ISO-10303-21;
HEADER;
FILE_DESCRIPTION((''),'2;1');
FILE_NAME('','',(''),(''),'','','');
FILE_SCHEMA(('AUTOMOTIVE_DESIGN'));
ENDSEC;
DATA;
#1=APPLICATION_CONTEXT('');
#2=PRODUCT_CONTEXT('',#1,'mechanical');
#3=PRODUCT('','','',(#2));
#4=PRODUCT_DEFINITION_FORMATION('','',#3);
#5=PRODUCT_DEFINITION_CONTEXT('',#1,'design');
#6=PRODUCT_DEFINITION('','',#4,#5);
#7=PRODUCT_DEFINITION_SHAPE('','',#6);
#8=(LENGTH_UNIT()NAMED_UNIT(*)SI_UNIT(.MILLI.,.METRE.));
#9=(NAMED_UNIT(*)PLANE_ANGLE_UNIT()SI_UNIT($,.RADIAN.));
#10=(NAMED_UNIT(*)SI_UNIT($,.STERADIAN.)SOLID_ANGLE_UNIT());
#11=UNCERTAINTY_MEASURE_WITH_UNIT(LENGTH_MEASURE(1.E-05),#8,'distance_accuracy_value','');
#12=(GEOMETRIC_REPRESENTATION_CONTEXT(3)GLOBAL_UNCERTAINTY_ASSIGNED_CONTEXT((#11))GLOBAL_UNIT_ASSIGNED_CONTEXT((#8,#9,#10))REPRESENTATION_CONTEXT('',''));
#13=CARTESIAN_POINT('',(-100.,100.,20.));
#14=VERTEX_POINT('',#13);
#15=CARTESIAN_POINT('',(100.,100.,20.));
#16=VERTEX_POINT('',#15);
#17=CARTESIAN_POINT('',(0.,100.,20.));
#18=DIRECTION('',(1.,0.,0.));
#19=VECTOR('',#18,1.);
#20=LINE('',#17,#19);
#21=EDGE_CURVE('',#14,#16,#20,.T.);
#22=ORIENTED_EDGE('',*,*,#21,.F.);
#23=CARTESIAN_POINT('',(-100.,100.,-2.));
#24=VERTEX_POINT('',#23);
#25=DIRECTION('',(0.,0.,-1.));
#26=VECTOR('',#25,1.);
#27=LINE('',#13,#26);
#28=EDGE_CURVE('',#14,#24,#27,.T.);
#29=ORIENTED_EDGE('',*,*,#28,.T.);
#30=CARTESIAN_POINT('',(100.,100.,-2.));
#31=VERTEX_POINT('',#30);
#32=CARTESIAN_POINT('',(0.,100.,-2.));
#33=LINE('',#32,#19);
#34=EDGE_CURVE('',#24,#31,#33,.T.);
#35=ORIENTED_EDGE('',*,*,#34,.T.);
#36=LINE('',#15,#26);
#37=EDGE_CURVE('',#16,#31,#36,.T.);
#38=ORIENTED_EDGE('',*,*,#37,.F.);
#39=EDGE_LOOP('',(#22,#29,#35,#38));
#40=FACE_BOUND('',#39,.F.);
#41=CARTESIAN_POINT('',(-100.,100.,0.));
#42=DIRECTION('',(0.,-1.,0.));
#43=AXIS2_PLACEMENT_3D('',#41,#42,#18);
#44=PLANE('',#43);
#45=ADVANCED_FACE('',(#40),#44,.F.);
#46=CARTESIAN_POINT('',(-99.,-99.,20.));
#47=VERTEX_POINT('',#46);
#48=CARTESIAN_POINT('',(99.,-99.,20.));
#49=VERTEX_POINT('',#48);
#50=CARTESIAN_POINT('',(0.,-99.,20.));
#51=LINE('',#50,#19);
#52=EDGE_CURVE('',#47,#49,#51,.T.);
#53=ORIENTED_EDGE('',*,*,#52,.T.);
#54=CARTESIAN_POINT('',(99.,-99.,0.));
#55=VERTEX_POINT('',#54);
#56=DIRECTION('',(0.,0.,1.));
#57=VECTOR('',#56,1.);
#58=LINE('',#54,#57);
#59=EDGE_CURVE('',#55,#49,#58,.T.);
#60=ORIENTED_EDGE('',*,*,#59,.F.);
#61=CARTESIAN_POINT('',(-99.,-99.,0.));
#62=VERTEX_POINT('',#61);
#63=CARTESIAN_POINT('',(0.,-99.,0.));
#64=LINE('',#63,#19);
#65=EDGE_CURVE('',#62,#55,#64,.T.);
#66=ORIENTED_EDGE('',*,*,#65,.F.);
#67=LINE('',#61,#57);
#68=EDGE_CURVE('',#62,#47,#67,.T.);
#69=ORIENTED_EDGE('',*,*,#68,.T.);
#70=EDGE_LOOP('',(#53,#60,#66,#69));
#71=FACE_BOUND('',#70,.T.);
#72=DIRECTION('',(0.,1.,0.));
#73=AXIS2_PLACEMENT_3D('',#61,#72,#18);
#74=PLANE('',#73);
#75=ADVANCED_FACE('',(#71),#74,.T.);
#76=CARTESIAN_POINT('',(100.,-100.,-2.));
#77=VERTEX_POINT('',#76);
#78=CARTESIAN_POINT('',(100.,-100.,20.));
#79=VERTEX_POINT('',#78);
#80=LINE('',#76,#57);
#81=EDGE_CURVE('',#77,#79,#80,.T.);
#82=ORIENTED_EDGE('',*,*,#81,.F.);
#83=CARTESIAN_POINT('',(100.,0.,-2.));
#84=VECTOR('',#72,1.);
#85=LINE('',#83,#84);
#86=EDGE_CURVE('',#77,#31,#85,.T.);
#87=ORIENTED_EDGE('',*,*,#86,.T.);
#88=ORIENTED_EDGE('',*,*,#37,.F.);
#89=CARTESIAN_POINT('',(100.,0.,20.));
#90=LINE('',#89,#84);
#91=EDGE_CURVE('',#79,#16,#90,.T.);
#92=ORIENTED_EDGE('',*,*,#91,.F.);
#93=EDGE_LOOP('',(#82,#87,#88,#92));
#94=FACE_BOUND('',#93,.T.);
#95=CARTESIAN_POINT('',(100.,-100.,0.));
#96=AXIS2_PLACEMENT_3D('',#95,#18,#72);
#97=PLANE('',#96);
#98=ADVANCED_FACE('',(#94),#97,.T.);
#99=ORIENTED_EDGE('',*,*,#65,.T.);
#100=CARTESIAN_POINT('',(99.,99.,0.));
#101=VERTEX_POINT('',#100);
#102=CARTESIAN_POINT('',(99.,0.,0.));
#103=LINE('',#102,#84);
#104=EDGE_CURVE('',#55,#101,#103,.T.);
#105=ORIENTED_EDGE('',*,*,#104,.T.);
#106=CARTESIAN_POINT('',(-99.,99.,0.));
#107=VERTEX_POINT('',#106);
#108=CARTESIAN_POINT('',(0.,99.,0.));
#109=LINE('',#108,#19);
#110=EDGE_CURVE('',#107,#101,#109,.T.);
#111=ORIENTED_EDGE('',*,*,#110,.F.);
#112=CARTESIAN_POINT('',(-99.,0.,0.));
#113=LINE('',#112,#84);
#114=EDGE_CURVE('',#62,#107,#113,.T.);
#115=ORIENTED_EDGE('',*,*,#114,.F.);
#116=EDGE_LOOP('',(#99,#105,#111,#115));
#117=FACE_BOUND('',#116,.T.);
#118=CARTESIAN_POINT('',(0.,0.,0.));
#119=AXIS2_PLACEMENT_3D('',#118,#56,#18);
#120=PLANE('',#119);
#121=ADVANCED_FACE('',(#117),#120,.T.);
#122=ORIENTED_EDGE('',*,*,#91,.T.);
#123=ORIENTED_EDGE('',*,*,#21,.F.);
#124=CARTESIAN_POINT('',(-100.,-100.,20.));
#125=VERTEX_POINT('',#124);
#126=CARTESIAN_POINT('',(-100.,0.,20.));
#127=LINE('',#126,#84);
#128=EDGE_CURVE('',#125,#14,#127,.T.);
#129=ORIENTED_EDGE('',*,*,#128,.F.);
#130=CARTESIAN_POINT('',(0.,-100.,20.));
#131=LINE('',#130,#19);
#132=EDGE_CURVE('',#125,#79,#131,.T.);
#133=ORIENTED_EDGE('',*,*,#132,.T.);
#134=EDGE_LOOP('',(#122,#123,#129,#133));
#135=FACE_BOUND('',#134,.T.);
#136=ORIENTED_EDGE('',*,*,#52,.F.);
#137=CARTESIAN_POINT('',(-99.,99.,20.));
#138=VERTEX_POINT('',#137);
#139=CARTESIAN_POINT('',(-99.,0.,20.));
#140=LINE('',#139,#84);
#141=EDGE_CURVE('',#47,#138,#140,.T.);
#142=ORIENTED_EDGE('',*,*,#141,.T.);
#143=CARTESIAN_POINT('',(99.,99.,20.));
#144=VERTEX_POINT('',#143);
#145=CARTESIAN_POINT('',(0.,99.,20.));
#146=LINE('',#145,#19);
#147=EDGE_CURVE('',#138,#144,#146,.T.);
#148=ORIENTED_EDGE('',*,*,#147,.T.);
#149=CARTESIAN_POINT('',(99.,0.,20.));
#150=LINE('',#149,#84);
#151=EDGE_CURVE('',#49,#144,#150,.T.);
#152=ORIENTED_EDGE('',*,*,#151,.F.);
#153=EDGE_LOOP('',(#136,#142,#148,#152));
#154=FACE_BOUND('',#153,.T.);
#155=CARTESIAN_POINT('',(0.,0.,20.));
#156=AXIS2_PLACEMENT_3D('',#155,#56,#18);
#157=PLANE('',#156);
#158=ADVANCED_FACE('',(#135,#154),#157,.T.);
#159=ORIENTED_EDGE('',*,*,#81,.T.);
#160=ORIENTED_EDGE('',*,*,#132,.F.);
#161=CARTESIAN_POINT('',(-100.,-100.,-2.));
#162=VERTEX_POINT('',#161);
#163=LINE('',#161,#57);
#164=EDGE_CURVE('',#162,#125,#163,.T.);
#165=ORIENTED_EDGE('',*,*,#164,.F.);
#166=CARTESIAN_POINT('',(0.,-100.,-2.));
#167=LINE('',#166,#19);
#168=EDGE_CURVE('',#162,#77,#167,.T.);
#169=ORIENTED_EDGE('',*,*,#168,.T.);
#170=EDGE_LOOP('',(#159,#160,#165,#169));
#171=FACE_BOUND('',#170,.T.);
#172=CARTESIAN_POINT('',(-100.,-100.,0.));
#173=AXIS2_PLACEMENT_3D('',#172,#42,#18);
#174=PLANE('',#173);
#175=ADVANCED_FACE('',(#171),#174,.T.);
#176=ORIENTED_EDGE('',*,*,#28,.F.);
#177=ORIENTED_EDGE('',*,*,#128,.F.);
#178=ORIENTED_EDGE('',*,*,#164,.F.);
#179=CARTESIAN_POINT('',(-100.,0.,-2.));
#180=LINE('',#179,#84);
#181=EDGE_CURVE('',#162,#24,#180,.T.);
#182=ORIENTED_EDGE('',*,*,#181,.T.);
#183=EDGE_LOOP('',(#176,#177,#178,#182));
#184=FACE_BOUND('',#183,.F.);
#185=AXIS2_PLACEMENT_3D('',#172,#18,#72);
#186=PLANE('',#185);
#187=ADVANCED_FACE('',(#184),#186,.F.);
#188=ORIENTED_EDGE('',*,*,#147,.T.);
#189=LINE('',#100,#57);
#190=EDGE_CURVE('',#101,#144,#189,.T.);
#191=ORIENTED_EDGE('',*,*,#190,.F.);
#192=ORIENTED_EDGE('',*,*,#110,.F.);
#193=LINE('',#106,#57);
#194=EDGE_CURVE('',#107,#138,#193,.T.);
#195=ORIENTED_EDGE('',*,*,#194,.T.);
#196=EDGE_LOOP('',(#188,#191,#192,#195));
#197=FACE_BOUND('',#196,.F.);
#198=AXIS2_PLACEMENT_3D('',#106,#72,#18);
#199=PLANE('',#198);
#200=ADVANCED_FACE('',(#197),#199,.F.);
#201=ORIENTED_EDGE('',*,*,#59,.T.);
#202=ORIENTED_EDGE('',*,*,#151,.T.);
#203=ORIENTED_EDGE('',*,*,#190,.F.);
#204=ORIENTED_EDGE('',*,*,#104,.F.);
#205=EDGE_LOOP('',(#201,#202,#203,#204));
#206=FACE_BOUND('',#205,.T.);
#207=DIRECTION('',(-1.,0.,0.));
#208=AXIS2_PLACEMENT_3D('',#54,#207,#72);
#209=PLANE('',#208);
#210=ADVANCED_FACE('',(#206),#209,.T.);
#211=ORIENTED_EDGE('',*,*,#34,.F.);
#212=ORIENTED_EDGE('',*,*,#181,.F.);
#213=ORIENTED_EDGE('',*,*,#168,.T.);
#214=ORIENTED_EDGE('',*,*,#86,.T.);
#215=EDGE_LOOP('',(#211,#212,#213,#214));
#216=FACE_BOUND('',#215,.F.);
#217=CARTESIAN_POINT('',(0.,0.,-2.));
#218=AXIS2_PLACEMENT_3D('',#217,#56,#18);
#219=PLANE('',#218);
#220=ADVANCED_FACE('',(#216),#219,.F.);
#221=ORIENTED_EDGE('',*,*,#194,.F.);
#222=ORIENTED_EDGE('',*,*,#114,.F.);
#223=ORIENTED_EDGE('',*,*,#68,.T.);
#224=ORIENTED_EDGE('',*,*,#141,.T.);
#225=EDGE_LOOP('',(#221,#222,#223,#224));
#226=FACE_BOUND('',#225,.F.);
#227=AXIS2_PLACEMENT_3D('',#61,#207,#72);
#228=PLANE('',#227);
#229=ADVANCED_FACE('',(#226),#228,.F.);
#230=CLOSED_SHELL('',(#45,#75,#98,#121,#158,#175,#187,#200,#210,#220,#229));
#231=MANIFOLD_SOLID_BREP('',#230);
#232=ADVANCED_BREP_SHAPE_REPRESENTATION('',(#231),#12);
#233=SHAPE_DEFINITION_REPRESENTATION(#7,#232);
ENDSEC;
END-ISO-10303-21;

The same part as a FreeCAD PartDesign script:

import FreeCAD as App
import Part
import Sketcher
from FreeCAD import Vector


def add_polygon(sketch, points):
    """Adds a closed chain of lines whose ends are joined by coincident constraints."""
    first, n = sketch.GeometryCount, len(points)
    for a, b in zip(points, points[1:] + points[:1]):
        sketch.addGeometry(Part.LineSegment(App.Vector(*a, 0), App.Vector(*b, 0)), False)
    for i in range(n):
        sketch.addConstraint(Sketcher.Constraint("Coincident", first + i, 2, first + (i + 1) % n, 1))

doc = App.newDocument("Part")
body = doc.addObject("PartDesign::Body", "Body")

sketch1 = body.newObject("Sketcher::SketchObject", "Sketch")
sketch1.AttachmentSupport = (doc.getObject("XY_Plane"), [""])
sketch1.MapMode = "FlatFace"
add_polygon(sketch1, [(-100, 100), (-100, -100), (100, -100), (100, 100)])
add_polygon(sketch1, [(99, -99), (-99, -99), (-99, 99), (99, 99)])
sketch1.addConstraint([
    Sketcher.Constraint("Vertical", 0),
    Sketcher.Constraint("Horizontal", 1),
    Sketcher.Constraint("Vertical", 2),
    Sketcher.Constraint("Horizontal", 3),
    Sketcher.Constraint("Horizontal", 4),
    Sketcher.Constraint("Vertical", 5),
    Sketcher.Constraint("Horizontal", 6),
    Sketcher.Constraint("Vertical", 7),
    Sketcher.Constraint("Symmetric", 0, 2, 2, 2, -1, 1),
    Sketcher.Constraint("Symmetric", 4, 2, 6, 2, -1, 1),
    Sketcher.Constraint("Equal", 3, 0),
    Sketcher.Constraint("Equal", 6, 5),
    Sketcher.Constraint("DistanceX", 1, 1, 1, 2, 200.0),
    Sketcher.Constraint("DistanceX", 4, 2, 4, 1, 198.0),
])
pad1 = body.newObject("PartDesign::Pad", "Pad")
pad1.Profile = sketch1
pad1.Length = 20

sketch2 = body.newObject("Sketcher::SketchObject", "Sketch001")
sketch2.AttachmentSupport = (doc.getObject("XY_Plane"), [""])
sketch2.MapMode = "FlatFace"
add_polygon(sketch2, [(-100, 100), (-100, -100), (100, -100), (100, 100)])
sketch2.addConstraint([
    Sketcher.Constraint("Vertical", 0),
    Sketcher.Constraint("Horizontal", 1),
    Sketcher.Constraint("Vertical", 2),
    Sketcher.Constraint("Horizontal", 3),
    Sketcher.Constraint("Symmetric", 0, 2, 2, 2, -1, 1),
    Sketcher.Constraint("Equal", 3, 0),
    Sketcher.Constraint("DistanceX", 1, 1, 1, 2, 200.0),
])
pad2 = body.newObject("PartDesign::Pad", "Pad001")
pad2.Profile = sketch2
pad2.Length = 2
pad2.Reversed = True

doc.recompute()
